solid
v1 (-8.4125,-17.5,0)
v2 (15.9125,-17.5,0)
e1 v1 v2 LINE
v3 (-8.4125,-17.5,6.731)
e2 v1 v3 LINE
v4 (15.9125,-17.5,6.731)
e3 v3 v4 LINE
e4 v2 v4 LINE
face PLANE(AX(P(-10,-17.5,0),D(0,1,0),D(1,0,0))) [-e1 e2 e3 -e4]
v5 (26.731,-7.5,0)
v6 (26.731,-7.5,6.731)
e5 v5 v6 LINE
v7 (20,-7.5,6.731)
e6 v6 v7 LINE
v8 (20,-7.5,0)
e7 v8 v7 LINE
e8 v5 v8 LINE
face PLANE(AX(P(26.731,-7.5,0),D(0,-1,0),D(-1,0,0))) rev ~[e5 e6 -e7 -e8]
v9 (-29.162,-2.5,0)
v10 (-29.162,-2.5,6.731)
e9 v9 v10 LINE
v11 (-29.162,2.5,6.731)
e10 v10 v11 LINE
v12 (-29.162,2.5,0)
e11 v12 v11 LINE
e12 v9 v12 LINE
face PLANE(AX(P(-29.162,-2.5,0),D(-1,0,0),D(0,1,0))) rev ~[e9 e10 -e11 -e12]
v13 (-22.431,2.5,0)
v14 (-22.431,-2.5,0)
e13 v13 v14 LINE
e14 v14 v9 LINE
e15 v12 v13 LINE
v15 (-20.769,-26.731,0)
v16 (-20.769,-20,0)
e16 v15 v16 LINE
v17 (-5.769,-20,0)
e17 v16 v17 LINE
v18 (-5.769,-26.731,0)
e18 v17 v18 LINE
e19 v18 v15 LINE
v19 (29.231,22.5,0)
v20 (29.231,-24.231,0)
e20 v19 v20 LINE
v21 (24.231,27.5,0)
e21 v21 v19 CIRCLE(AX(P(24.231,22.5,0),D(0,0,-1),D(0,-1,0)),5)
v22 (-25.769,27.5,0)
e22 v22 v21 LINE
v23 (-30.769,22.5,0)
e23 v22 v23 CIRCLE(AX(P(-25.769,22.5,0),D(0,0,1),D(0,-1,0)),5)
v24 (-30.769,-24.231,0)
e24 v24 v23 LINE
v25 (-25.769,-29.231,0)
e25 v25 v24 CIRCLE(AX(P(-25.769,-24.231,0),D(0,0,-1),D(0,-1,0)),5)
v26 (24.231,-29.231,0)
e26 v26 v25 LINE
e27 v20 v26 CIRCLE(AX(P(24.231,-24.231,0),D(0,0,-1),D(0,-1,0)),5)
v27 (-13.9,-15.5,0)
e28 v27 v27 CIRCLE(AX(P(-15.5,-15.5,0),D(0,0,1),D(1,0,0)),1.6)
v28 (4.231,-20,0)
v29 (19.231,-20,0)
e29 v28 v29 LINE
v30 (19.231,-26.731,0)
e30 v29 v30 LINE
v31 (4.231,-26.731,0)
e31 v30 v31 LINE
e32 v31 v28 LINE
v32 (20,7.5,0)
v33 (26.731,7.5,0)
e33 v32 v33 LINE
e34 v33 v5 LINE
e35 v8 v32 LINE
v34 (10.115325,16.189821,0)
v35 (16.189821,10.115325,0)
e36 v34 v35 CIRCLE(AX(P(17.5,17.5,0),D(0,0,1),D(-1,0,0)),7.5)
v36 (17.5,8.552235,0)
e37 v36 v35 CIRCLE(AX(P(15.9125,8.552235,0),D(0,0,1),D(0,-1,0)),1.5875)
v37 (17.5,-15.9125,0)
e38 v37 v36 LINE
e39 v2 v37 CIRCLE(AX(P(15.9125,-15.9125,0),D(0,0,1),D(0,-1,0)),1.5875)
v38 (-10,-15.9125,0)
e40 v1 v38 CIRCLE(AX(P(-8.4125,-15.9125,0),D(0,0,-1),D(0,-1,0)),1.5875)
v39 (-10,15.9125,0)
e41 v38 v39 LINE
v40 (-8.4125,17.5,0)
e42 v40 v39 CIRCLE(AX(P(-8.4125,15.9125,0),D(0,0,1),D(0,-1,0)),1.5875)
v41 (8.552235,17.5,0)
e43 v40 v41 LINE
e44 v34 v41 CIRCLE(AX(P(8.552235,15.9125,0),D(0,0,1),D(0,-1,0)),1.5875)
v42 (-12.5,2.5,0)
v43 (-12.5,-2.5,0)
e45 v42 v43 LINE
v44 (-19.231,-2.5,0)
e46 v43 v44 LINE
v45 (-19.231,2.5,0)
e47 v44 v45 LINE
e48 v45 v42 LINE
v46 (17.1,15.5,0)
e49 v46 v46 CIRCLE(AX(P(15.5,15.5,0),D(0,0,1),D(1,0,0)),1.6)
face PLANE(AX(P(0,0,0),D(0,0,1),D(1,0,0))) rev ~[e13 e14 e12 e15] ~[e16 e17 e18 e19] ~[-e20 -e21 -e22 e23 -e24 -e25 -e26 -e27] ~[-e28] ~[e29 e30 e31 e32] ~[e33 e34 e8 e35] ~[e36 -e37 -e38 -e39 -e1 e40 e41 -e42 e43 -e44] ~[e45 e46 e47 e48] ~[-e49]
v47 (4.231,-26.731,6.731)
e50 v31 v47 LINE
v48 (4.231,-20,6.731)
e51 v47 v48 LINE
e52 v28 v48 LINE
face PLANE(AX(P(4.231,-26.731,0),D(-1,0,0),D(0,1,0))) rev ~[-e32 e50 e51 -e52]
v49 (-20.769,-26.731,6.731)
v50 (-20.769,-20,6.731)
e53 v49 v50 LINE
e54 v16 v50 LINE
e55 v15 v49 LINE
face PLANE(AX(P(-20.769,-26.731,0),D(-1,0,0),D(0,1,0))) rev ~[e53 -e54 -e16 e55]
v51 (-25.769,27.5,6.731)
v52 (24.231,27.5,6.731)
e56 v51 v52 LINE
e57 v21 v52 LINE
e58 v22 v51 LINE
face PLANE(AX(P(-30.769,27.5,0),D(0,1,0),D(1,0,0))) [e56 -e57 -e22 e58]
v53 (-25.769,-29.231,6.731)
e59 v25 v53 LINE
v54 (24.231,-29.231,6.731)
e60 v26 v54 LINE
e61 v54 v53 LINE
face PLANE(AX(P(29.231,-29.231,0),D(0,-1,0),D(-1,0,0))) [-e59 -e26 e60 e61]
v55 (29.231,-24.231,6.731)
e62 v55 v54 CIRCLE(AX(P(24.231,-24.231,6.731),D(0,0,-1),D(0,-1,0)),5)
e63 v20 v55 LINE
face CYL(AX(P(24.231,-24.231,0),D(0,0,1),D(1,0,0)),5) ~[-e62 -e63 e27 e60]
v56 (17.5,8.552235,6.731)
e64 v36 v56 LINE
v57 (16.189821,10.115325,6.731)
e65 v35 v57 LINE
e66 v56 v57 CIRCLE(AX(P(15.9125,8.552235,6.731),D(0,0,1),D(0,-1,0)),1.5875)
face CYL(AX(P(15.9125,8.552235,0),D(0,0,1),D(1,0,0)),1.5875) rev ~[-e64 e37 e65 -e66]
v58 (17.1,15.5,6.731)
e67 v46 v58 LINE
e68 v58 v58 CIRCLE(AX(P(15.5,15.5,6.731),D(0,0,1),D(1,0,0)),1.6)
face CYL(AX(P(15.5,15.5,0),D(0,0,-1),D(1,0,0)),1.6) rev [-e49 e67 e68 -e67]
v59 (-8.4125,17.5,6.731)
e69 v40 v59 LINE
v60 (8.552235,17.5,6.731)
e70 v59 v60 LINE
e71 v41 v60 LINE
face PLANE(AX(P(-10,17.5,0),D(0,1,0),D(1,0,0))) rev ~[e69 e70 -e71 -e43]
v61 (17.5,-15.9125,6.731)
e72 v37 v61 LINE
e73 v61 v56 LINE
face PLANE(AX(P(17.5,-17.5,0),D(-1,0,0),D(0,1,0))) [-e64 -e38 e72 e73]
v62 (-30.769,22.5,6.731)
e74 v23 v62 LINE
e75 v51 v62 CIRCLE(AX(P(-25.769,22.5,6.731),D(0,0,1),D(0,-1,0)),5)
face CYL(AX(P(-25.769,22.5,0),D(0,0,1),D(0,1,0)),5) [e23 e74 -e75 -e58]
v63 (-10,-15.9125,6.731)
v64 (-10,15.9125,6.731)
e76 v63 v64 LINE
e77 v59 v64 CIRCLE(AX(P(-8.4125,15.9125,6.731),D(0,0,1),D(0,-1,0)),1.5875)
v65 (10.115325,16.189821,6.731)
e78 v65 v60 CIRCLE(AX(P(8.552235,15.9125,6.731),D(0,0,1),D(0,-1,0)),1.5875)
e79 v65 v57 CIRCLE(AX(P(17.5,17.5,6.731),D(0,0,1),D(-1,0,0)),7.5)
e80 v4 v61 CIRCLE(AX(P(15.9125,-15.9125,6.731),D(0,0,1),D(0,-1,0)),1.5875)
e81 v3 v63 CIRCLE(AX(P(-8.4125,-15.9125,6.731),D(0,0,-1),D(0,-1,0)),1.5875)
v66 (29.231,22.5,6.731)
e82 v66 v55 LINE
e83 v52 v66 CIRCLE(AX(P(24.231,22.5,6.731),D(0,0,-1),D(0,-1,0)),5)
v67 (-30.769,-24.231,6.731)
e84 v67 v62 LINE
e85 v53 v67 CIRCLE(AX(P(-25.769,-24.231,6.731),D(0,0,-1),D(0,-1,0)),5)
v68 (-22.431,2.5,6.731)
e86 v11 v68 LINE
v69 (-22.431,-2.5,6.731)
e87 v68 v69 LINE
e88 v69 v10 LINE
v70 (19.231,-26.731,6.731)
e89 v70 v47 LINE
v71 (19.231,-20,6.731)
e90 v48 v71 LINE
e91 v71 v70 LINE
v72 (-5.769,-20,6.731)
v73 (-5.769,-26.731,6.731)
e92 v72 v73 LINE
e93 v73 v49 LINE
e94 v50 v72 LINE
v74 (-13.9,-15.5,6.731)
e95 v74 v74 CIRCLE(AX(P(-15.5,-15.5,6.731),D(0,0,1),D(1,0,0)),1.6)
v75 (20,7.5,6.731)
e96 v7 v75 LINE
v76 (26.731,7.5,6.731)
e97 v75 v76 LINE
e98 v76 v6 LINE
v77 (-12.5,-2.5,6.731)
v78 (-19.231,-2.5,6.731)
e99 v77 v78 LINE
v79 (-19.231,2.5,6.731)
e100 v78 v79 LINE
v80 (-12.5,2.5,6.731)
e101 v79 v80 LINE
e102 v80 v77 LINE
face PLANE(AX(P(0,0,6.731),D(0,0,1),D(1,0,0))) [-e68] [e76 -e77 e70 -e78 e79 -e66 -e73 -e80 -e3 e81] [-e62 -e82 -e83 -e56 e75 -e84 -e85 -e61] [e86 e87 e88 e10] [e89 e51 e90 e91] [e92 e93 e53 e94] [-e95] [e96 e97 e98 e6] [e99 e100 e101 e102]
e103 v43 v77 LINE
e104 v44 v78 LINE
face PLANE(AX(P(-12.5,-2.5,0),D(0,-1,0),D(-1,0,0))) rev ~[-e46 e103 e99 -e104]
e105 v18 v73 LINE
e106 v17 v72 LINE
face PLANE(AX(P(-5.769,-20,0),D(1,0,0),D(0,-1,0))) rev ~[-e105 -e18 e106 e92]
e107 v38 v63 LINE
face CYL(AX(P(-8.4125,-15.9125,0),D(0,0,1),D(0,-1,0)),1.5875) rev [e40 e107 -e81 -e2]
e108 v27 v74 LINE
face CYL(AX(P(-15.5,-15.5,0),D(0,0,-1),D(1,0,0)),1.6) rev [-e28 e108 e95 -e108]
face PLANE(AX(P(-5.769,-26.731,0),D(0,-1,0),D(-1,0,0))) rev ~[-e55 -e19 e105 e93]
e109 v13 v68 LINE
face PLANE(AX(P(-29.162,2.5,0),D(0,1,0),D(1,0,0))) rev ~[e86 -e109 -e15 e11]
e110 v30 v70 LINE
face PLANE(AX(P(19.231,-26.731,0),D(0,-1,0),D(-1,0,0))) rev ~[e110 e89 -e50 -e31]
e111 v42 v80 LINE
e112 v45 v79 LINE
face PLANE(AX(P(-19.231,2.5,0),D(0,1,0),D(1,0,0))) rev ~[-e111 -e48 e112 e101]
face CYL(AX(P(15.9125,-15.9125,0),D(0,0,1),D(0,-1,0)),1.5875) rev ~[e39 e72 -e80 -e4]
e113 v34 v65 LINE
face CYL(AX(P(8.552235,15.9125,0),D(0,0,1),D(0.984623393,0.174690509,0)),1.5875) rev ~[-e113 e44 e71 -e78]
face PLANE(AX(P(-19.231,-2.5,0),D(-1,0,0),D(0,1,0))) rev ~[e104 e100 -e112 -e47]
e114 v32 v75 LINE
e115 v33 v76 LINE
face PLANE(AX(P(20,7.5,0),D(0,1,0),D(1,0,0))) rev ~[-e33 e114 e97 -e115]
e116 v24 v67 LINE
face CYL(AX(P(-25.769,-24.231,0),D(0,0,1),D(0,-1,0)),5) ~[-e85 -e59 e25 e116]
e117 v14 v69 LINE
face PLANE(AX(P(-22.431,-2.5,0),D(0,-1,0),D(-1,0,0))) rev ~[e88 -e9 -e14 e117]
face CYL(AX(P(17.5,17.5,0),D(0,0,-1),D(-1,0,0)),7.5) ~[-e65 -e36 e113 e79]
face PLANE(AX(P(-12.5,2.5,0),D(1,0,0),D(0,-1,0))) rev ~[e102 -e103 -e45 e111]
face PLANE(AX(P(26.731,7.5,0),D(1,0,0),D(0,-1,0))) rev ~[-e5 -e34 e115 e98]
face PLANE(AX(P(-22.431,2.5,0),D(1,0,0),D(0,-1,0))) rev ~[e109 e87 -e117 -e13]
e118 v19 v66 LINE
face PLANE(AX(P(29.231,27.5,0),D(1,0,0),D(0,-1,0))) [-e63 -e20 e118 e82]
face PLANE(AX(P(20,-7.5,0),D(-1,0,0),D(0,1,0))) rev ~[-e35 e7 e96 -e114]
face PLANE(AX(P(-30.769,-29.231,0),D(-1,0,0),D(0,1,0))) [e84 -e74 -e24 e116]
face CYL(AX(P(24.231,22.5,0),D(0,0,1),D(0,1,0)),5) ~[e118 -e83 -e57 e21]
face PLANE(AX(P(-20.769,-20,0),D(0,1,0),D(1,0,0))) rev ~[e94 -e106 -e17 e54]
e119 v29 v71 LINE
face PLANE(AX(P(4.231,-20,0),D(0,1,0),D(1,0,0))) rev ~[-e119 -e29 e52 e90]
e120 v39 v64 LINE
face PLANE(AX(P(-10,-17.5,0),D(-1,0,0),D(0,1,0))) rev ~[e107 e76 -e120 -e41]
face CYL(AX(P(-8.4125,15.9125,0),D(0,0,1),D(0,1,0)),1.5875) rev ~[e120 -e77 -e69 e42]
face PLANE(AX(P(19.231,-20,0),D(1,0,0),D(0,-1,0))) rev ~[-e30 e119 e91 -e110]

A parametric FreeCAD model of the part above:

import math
import FreeCAD as App
import Part
import Sketcher
from FreeCAD import Vector
Q = App.Units.Quantity


def edges_at(feature, points):
    """Names of the edges that pass closest to the given points."""
    edges = feature.Shape.Edges
    near = lambda p: min(range(len(edges)), key=lambda i: edges[i].distToShape(Part.Vertex(*p))[0])
    return sorted({f"Edge{near(p) + 1}" for p in points})


def add_polygon(sketch, points):
    """Adds a closed chain of lines whose ends are joined by coincident constraints."""
    first, n = sketch.GeometryCount, len(points)
    for a, b in zip(points, points[1:] + points[:1]):
        sketch.addGeometry(Part.LineSegment(App.Vector(*a, 0), App.Vector(*b, 0)), False)
    for i in range(n):
        sketch.addConstraint(Sketcher.Constraint("Coincident", first + i, 2, first + (i + 1) % n, 1))

doc = App.newDocument("Part")
body = doc.addObject("PartDesign::Body", "Body")

sketch1 = doc.addObject("Sketcher::SketchObject", "Sketch")
body.addObject(sketch1)
sketch1.AttachmentSupport = (doc.XY_Plane, [""])
sketch1.MapMode = "FlatFace"
add_polygon(sketch1, [(29.231, 27.5), (-30.769, 27.5), (-30.769, -29.231), (29.231, -29.231)])
add_polygon(sketch1, [(-20.769, -26.731), (-20.769, -20), (-5.769, -20), (-5.769, -26.731)])
sketch1.addGeometry(Part.Circle(Vector(-15.5, -15.5, 0), Vector(0, 0, 1), 1.6), False)
add_polygon(sketch1, [(4.231, -26.731), (4.231, -20), (19.231, -20), (19.231, -26.731)])
add_polygon(sketch1, [(-29.162, -2.5), (-29.162, 2.5), (-22.431, 2.5), (-22.431, -2.5)])
add_polygon(sketch1, [(-19.231, -2.5), (-19.231, 2.5), (-12.5, 2.5), (-12.5, -2.5)])
sketch1.addGeometry(Part.LineSegment(Vector(17.5, -17.5, 0), Vector(-10, -17.5, 0)), False)
sketch1.addGeometry(Part.LineSegment(Vector(-10, -17.5, 0), Vector(-10, 17.5, 0)), False)
sketch1.addGeometry(Part.LineSegment(Vector(-10, 17.5, 0), Vector(10, 17.5, 0)), False)
sketch1.addGeometry(Part.ArcOfCircle(Part.Circle(Vector(17.5, 17.5, 0), Vector(0, 0, 1), 7.5), math.radians(180), math.radians(270)), False)
sketch1.addGeometry(Part.LineSegment(Vector(17.5, 10, 0), Vector(17.5, -17.5, 0)), False)
add_polygon(sketch1, [(20, -7.5), (20, 7.5), (26.731, 7.5), (26.731, -7.5)])
sketch1.addGeometry(Part.Circle(Vector(15.5, 15.5, 0), Vector(0, 0, 1), 1.6), False)
sketch1.addConstraint(Sketcher.Constraint("Coincident", 21, 2, 22, 1))
sketch1.addConstraint(Sketcher.Constraint("Coincident", 22, 2, 23, 1))
sketch1.addConstraint(Sketcher.Constraint("Coincident", 23, 2, 24, 1))
sketch1.addConstraint(Sketcher.Constraint("Coincident", 24, 2, 25, 1))
sketch1.addConstraint(Sketcher.Constraint("Coincident", 25, 2, 21, 1))
sketch1.addConstraint(Sketcher.Constraint("Horizontal", 0))
sketch1.addConstraint(Sketcher.Constraint("Vertical", 1))
sketch1.addConstraint(Sketcher.Constraint("Horizontal", 2))
sketch1.addConstraint(Sketcher.Constraint("Vertical", 3))
sketch1.addConstraint(Sketcher.Constraint("Vertical", 4))
sketch1.addConstraint(Sketcher.Constraint("Horizontal", 5))
sketch1.addConstraint(Sketcher.Constraint("Vertical", 6))
sketch1.addConstraint(Sketcher.Constraint("Horizontal", 7))
sketch1.addConstraint(Sketcher.Constraint("Vertical", 9))
sketch1.addConstraint(Sketcher.Constraint("Horizontal", 10))
sketch1.addConstraint(Sketcher.Constraint("Vertical", 11))
sketch1.addConstraint(Sketcher.Constraint("Horizontal", 12))
sketch1.addConstraint(Sketcher.Constraint("Vertical", 13))
sketch1.addConstraint(Sketcher.Constraint("Horizontal", 14))
sketch1.addConstraint(Sketcher.Constraint("Vertical", 15))
sketch1.addConstraint(Sketcher.Constraint("Horizontal", 16))
sketch1.addConstraint(Sketcher.Constraint("Vertical", 17))
sketch1.addConstraint(Sketcher.Constraint("Horizontal", 18))
sketch1.addConstraint(Sketcher.Constraint("Vertical", 19))
sketch1.addConstraint(Sketcher.Constraint("Horizontal", 20))
sketch1.addConstraint(Sketcher.Constraint("Horizontal", 21))
sketch1.addConstraint(Sketcher.Constraint("Vertical", 22))
sketch1.addConstraint(Sketcher.Constraint("Horizontal", 23))
sketch1.addConstraint(Sketcher.Constraint("Vertical", 25))
sketch1.addConstraint(Sketcher.Constraint("Vertical", 26))
sketch1.addConstraint(Sketcher.Constraint("Horizontal", 27))
sketch1.addConstraint(Sketcher.Constraint("Vertical", 28))
sketch1.addConstraint(Sketcher.Constraint("Horizontal", 29))
sketch1.addConstraint(Sketcher.Constraint("Equal", 8, 30))
sketch1.addConstraint(Sketcher.Constraint("Symmetric", 8, 3, 30, 3, -1, 1))
sketch1.addConstraint(Sketcher.Constraint("Symmetric", 21, 2, 23, 2, -1, 1))
sketch1.addConstraint(Sketcher.Constraint("Horizontal", 5, 2, 9, 2))
sketch1.addConstraint(Sketcher.Constraint("Horizontal", 7, 2, 11, 2))
sketch1.addConstraint(Sketcher.Constraint("Horizontal", 14, 2, 17, 2))
sketch1.addConstraint(Sketcher.Constraint("Horizontal", 16, 2, 19, 2))
sketch1.addConstraint(Sketcher.Constraint("Horizontal", 24, 3, 22, 2))
sketch1.addConstraint(Sketcher.Constraint("Equal", 7, 10))
sketch1.addConstraint(Sketcher.Constraint("Equal", 16, 18))
sketch1.addConstraint(Sketcher.Constraint("Equal", 20, 27))
sketch1.addConstraint(Sketcher.Constraint("Equal", 29, 4))
sketch1.addConstraint(Sketcher.Constraint("Equal", 21, 25))
sketch1.addConstraint(Sketcher.Constraint("Equal", 12, 26))
sketch1.addConstraint(Sketcher.Constraint("Diameter", 8, Q("3.2 mm")))
sketch1.addConstraint(Sketcher.Constraint("Radius", 24, Q("7.5 mm")))
sketch1.addConstraint(Sketcher.Constraint("DistanceX", 0, 2, 0, 1, Q("60 mm")))
sketch1.addConstraint(Sketcher.Constraint("DistanceX", 5, 1, 5, 2, Q("15 mm")))
sketch1.addConstraint(Sketcher.Constraint("DistanceX", 23, 1, 23, 2, Q("20 mm")))
sketch1.addConstraint(Sketcher.Constraint("DistanceY", 13, 1, 13, 2, Q("5 mm")))
sketch1.addConstraint(Sketcher.Constraint("DistanceY", 22, 1, 22, 2, Q("35 mm")))
sketch1.addConstraint(Sketcher.Constraint("DistanceY", 4, 2, -1, 1, Q("20 mm")))
sketch1.addConstraint(Sketcher.Constraint("DistanceX", -1, 1, 26, 2, Q("20 mm")))
sketch1.addConstraint(Sketcher.Constraint("DistanceY", 24, 3, 0, 2, Q("10 mm")))
sketch1.addConstraint(Sketcher.Constraint("DistanceX", 1, 2, 4, 2, Q("10 mm")))
sketch1.addConstraint(Sketcher.Constraint("DistanceX", 5, 2, 9, 2, Q("10 mm")))
sketch1.addConstraint(Sketcher.Constraint("DistanceY", 18, 2, 22, 2, Q("15 mm")))
sketch1.addConstraint(Sketcher.Constraint("DistanceY", 26, 2, 24, 3, Q("10 mm")))
sketch1.addConstraint(Sketcher.Constraint("DistanceX", 8, 3, -1, 1, Q("15.5 mm")))
sketch1.addConstraint(Sketcher.Constraint("DistanceY", 8, 3, -1, 1, Q("15.5 mm")))
sketch1.addConstraint(Sketcher.Constraint("DistanceY", 1, 2, 6, 2, Q("2.5 mm")))
sketch1.addConstraint(Sketcher.Constraint("DistanceX", 14, 2, 17, 2, Q("3.2 mm")))
sketch1.addConstraint(Sketcher.Constraint("DistanceX", 18, 2, 22, 2, Q("2.5 mm")))
sketch1.addConstraint(Sketcher.Constraint("DistanceX", 10, 2, 28, 2, Q("7.5 mm")))
sketch1.addConstraint(Sketcher.Constraint("DistanceX", 14, 1, 14, 2, Q("6.731 mm")))
pad1 = doc.addObject("PartDesign::Pad", "Pad")
body.addObject(pad1)
pad1.Profile = sketch1
pad1.Length = 6.731
doc.recompute()

fillet = doc.addObject("PartDesign::Fillet", "Fillet")
body.addObject(fillet)
fillet.Base = (pad1, edges_at(pad1, [
    (29.231, 27.5, 3.365),
    (29.231, -29.231, 3.365),
    (-30.769, -29.231, 3.365),
    (-30.769, 27.5, 3.365),
]))
fillet.Radius = 5
doc.recompute()

fillet2 = doc.addObject("PartDesign::Fillet", "Fillet001")
body.addObject(fillet2)
fillet2.Base = (fillet, edges_at(fillet, [
    (-10, -17.5, 3.365),
    (17.5, -17.5, 3.365),
    (17.5, 10, 3.365),
    (10, 17.5, 3.365),
    (-10, 17.5, 3.365),
]))
fillet2.Radius = 1.5875

doc.recompute()
